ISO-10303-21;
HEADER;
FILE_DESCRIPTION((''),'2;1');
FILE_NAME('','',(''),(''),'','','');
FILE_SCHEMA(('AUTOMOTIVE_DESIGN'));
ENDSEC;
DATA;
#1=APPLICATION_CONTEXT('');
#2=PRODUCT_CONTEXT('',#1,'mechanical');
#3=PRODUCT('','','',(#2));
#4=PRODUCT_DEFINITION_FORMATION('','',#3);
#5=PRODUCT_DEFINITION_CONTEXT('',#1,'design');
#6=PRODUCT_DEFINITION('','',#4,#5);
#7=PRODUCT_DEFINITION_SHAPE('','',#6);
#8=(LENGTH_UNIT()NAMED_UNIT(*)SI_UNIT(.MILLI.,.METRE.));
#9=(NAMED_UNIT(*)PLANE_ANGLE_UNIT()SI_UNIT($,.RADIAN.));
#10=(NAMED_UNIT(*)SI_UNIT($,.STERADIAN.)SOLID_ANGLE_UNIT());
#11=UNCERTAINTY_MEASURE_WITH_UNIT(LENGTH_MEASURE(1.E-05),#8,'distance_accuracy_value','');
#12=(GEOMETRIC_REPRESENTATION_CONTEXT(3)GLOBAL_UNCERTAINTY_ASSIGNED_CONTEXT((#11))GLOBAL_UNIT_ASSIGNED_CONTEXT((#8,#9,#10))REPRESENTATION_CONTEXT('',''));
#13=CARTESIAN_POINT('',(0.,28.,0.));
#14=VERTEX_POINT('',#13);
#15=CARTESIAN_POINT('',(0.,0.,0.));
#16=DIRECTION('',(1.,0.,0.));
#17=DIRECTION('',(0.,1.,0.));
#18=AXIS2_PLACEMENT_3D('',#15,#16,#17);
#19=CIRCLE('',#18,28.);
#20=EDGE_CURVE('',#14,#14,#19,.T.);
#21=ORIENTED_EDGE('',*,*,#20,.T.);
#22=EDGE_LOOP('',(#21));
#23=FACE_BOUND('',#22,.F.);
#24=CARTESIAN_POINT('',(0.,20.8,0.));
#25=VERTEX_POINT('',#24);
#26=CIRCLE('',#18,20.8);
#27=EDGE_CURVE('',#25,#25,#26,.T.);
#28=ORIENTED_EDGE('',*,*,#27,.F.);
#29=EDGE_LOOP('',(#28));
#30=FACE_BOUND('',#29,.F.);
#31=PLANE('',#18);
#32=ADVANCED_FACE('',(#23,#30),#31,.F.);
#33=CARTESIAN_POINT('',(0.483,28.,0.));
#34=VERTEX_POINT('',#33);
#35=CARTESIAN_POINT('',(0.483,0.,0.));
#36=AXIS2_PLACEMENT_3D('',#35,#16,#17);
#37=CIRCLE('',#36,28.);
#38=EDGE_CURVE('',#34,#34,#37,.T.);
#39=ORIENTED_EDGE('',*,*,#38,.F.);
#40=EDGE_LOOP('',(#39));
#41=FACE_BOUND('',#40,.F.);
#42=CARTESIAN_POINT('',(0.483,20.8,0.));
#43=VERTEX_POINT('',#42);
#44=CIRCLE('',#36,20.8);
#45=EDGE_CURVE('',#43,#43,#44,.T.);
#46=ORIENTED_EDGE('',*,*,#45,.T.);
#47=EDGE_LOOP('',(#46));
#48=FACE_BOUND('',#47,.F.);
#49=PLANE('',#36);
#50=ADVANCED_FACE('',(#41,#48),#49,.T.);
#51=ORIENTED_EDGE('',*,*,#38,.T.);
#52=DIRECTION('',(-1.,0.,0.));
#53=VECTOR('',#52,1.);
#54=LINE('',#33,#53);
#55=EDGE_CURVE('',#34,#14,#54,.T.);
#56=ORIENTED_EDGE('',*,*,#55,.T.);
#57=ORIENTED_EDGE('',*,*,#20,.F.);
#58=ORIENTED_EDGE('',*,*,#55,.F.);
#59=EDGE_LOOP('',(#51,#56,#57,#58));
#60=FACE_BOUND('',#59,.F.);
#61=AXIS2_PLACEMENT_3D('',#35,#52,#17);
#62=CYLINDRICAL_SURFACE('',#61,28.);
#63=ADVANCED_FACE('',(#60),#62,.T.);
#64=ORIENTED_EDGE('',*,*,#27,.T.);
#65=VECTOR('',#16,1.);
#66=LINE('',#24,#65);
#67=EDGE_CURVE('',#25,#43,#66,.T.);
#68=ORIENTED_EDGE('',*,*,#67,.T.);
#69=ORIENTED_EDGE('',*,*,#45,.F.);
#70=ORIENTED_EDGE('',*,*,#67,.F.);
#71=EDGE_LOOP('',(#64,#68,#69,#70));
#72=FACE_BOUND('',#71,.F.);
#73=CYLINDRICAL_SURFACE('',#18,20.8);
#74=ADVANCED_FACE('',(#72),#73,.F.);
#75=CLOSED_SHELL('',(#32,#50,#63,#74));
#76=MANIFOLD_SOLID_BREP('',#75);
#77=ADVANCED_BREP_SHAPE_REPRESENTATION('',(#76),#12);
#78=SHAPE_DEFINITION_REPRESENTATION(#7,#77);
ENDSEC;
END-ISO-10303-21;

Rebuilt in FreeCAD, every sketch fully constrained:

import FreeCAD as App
import Part
import Sketcher

V = App.Vector


def add_polygon(sketch, points):
    """Adds a closed chain of lines whose ends are joined by coincident constraints."""
    first, n = sketch.GeometryCount, len(points)
    for a, b in zip(points, points[1:] + points[:1]):
        sketch.addGeometry(Part.LineSegment(App.Vector(*a, 0), App.Vector(*b, 0)), False)
    for i in range(n):
        sketch.addConstraint(Sketcher.Constraint("Coincident", first + i, 2, first + (i + 1) % n, 1))

doc = App.newDocument("Part")
body = doc.addObject("PartDesign::Body", "Body")

# Sketch on XY plane
sketch1 = body.newObject("Sketcher::SketchObject", "Sketch")
sketch1.AttachmentSupport = (doc.getObject("XY_Plane"), [""])
sketch1.MapMode = "FlatFace"
add_polygon(sketch1, [(0, 28), (0, 20.8), (0.48, 20.8), (0.48, 28)])  # lines 0-3
sketch1.addConstraint([
    Sketcher.Constraint("Vertical", 0),
    Sketcher.Constraint("Horizontal", 1),
    Sketcher.Constraint("Vertical", 2),
    Sketcher.Constraint("Horizontal", 3),
    Sketcher.Constraint("PointOnObject", 0, 2, -2),
    Sketcher.Constraint("DistanceY", 0, 2, 0, 1, 7.2),
    Sketcher.Constraint("DistanceY", -1, 1, 2, 2, 28.0),
    Sketcher.Constraint("DistanceX", 1, 1, 1, 2, 0.483),
])
revolution = body.newObject("PartDesign::Revolution", "Revolution")
revolution.Profile = sketch1
revolution.ReferenceAxis = (sketch1, ["H_Axis"])
revolution.Angle = 360

doc.recompute()
